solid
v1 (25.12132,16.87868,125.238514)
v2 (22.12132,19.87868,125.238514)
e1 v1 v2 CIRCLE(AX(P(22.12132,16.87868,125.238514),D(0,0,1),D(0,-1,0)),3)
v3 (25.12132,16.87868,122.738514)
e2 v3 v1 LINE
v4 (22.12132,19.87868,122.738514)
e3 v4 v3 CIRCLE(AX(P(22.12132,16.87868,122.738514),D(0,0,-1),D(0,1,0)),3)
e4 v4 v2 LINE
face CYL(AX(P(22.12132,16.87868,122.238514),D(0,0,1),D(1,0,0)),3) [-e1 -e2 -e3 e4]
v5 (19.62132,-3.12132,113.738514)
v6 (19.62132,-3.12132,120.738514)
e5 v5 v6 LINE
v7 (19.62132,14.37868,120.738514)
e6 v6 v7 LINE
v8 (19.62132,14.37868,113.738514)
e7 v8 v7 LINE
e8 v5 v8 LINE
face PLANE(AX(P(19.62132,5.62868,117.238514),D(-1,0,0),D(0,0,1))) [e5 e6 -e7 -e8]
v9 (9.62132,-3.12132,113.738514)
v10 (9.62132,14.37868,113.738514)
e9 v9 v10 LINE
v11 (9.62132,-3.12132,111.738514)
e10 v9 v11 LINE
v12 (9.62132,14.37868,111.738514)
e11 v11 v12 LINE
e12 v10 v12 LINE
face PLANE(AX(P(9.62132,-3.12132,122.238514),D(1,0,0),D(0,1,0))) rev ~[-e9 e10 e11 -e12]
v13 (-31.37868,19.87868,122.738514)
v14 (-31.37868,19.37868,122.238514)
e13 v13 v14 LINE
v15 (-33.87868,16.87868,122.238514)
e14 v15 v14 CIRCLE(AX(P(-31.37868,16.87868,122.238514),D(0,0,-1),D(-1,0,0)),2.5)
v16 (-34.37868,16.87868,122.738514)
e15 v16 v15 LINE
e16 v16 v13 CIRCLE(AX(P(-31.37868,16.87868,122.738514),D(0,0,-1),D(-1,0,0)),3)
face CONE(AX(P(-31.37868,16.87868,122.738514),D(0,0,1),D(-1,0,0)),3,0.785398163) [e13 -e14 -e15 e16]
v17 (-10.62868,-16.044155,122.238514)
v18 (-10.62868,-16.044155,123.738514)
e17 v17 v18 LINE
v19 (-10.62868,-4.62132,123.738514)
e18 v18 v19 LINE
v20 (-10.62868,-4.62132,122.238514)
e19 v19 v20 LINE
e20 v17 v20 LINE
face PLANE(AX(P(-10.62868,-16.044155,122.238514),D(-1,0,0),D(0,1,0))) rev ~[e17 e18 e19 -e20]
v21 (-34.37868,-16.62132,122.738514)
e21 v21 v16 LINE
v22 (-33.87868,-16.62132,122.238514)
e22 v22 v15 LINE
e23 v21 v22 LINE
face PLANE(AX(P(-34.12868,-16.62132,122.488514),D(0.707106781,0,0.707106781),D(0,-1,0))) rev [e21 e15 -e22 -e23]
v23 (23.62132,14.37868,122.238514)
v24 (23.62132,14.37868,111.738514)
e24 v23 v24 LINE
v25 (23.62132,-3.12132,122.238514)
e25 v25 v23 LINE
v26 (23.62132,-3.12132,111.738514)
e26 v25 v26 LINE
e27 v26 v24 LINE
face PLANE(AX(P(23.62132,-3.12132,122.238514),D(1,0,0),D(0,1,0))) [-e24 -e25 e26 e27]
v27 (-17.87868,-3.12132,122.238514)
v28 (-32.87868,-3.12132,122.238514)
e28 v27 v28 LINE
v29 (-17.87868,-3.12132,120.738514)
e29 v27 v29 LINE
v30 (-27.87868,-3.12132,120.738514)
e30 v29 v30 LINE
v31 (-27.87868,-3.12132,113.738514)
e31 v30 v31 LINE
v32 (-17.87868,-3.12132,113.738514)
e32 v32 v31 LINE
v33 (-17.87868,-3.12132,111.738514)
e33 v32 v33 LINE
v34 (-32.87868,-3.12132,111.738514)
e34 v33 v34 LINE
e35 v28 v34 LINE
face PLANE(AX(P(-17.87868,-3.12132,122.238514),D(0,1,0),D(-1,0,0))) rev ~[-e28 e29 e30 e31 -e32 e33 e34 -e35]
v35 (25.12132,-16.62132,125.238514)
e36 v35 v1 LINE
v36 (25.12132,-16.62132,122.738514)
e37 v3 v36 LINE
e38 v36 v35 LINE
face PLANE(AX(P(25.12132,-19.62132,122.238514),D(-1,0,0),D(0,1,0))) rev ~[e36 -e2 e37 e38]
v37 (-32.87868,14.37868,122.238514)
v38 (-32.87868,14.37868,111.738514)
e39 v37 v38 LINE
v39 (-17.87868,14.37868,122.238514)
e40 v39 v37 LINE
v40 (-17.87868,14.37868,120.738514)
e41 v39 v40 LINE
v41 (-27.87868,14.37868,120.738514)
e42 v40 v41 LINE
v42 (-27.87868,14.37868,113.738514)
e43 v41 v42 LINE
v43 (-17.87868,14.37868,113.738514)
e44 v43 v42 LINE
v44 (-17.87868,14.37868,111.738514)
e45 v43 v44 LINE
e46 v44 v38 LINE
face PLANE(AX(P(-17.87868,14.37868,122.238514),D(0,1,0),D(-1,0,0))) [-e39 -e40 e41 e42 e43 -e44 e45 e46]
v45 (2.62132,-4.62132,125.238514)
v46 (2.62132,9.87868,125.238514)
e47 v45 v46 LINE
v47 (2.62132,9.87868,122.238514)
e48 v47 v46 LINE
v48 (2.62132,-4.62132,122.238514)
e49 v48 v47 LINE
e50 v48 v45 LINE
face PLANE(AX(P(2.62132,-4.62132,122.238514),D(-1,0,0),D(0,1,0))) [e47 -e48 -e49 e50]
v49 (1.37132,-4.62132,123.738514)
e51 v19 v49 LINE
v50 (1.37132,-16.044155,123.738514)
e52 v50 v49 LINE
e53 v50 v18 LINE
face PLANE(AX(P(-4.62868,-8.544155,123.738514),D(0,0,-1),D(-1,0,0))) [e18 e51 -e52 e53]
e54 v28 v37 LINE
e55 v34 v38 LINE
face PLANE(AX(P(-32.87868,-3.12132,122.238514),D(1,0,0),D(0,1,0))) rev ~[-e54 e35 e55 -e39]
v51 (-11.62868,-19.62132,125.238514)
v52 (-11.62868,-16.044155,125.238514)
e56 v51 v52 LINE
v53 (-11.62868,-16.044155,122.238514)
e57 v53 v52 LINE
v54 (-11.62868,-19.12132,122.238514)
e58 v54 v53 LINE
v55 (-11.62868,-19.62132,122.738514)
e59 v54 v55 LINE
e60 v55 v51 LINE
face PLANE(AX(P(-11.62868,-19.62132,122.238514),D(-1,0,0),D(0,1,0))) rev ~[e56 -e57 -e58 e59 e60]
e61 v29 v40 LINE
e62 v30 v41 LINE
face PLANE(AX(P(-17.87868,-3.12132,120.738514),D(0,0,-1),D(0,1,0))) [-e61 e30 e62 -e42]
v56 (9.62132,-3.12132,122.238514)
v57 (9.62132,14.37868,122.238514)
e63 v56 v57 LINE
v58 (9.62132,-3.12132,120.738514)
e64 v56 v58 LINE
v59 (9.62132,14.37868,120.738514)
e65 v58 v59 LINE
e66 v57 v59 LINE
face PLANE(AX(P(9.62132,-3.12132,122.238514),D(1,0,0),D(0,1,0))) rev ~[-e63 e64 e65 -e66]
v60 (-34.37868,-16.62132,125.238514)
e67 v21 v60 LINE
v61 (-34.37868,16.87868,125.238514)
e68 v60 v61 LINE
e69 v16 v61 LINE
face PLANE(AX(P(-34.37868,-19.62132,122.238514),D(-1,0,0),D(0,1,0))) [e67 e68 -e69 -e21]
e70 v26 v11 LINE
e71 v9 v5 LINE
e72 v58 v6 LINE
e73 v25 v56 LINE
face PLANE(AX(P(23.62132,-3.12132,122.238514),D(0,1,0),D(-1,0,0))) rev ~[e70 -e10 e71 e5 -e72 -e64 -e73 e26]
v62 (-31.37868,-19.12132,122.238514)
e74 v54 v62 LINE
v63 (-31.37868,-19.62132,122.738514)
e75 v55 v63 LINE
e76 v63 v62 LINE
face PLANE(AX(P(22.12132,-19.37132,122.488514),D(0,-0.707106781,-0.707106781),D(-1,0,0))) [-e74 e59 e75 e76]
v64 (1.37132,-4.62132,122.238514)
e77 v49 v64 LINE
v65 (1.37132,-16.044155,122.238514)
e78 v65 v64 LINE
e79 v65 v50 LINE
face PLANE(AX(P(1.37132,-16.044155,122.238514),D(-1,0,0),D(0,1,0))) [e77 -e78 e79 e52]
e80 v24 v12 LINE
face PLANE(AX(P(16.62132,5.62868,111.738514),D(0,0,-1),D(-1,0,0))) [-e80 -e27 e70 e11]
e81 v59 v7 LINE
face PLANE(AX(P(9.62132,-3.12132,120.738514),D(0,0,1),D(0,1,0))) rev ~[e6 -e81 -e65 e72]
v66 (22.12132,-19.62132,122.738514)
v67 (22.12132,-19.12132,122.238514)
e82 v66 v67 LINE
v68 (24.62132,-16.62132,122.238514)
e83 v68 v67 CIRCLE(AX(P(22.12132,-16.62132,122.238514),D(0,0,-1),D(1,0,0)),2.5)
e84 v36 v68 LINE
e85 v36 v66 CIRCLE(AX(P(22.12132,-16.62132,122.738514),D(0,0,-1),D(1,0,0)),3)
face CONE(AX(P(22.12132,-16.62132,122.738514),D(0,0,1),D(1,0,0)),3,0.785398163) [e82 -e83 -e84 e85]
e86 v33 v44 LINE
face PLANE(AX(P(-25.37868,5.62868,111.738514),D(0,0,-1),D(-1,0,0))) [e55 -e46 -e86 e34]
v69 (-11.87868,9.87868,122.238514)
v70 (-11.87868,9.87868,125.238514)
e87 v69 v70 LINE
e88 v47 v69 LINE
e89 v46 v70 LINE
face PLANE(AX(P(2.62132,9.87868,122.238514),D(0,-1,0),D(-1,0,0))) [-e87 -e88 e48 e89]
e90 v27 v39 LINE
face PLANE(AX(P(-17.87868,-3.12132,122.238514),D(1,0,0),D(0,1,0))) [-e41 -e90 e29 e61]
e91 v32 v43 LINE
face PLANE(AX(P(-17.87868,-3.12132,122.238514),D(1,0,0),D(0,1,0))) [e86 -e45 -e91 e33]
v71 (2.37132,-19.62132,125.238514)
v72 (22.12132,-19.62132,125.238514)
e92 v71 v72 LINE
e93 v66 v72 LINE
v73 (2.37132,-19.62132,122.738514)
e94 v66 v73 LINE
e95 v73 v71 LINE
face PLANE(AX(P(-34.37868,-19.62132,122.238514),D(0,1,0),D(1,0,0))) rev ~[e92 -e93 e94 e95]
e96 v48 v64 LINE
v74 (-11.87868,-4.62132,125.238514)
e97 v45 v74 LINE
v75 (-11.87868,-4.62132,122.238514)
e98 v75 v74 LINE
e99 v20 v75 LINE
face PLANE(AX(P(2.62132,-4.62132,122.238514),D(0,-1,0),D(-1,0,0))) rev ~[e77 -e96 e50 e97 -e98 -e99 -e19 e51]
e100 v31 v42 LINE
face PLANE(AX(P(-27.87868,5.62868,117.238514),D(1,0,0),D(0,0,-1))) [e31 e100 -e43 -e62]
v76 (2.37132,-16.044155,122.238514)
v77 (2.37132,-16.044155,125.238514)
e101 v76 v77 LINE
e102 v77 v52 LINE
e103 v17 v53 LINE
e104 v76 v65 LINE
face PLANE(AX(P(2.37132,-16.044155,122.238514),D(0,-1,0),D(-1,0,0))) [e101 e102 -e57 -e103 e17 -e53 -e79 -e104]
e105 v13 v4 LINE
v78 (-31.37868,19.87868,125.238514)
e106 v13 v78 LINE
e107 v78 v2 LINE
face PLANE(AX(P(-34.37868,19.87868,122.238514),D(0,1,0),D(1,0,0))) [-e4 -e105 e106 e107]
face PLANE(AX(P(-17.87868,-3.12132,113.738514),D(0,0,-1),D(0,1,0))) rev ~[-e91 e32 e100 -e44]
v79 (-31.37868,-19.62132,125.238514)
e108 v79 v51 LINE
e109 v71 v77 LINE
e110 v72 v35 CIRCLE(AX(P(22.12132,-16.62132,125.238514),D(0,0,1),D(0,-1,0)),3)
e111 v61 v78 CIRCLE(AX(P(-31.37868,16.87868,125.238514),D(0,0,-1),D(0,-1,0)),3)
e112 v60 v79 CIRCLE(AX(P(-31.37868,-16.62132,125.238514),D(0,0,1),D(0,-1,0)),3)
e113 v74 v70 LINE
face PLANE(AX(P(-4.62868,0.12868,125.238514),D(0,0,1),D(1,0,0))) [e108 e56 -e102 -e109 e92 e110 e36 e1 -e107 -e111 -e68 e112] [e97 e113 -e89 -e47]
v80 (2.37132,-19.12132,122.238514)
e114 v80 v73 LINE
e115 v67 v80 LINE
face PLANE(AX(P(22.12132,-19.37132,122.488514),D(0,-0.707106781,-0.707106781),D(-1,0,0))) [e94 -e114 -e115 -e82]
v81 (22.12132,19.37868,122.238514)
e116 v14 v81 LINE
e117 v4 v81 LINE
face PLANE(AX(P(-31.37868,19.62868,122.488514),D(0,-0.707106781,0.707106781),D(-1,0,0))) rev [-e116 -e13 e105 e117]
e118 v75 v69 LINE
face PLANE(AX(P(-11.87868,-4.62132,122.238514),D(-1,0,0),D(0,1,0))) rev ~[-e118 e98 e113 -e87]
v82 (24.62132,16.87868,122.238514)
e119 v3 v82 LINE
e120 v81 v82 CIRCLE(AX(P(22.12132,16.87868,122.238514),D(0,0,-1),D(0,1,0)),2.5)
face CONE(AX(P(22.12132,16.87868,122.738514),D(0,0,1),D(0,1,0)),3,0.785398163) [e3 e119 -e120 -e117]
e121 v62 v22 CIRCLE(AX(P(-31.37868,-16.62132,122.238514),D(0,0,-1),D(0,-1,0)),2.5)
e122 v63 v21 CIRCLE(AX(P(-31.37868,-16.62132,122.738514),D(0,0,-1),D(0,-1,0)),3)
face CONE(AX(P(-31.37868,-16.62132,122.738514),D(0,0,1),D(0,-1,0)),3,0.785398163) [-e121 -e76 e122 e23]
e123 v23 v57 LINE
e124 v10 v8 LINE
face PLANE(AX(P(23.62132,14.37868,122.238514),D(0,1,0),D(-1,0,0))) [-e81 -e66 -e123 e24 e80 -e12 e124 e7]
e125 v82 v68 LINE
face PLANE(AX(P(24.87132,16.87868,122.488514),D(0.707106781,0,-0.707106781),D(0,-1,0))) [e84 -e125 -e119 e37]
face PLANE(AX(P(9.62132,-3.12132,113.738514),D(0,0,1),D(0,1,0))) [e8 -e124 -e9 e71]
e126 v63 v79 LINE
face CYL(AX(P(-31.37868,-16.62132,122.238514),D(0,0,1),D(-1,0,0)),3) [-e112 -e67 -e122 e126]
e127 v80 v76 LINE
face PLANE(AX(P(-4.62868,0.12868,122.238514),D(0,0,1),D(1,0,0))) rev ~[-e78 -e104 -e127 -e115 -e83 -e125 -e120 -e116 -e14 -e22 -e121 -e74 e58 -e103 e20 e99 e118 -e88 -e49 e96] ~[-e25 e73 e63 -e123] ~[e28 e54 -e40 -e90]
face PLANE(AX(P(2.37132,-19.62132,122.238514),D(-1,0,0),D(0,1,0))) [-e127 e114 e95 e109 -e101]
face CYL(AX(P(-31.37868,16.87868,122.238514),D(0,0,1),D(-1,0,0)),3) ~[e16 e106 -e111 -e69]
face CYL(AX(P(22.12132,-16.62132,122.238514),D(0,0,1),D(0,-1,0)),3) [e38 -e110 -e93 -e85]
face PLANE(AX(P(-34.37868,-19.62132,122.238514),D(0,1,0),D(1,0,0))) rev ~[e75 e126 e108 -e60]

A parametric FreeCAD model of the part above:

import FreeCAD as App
import Part
import Sketcher


def edges_at(feature, points):
    """Names of the edges that pass closest to the given points."""
    edges = feature.Shape.Edges
    near = lambda p: min(range(len(edges)), key=lambda i: edges[i].distToShape(Part.Vertex(*p))[0])
    return sorted({f"Edge{near(p) + 1}" for p in points})


def add_polygon(sketch, points):
    """Adds a closed chain of lines whose ends are joined by coincident constraints."""
    first, n = sketch.GeometryCount, len(points)
    for a, b in zip(points, points[1:] + points[:1]):
        sketch.addGeometry(Part.LineSegment(App.Vector(*a, 0), App.Vector(*b, 0)), False)
    for i in range(n):
        sketch.addConstraint(Sketcher.Constraint("Coincident", first + i, 2, first + (i + 1) % n, 1))

doc = App.newDocument("Part")
body = doc.addObject("PartDesign::Body", "Body")

# Sketch on XY plane
sketch1 = body.newObject("Sketcher::SketchObject", "Sketch")
sketch1.AttachmentSupport = (doc.getObject("XY_Plane"), [""])
sketch1.MapMode = "FlatFace"
sketch1.AttachmentOffset = App.Placement(App.Vector(0, 0, 122.238514), App.Rotation())
add_polygon(sketch1, [(-34, 20), (-34, -20), (25, -20), (25, 20)])  # lines 0-3
sketch1.addConstraint([
    Sketcher.Constraint("Vertical", 0),
    Sketcher.Constraint("Horizontal", 1),
    Sketcher.Constraint("Vertical", 2),
    Sketcher.Constraint("Horizontal", 3),
    Sketcher.Constraint("DistanceX", 1, 1, 1, 2, 59.5),
    Sketcher.Constraint("DistanceY", 0, 2, 0, 1, 39.5),
    Sketcher.Constraint("DistanceX", 0, 2, -1, 1, 34.37868),
    Sketcher.Constraint("DistanceY", 0, 2, -1, 1, 19.62132),
])
pad1 = body.newObject("PartDesign::Pad", "Pad")
pad1.Profile = sketch1
pad1.Length = 3
doc.recompute()

fillet = body.newObject("PartDesign::Fillet", "Fillet")
fillet.Base = (pad1, edges_at(pad1, [
    (-34.379, 19.879, 123.739),
    (25.121, 19.879, 123.739),
    (25.121, -19.621, 123.739),
    (-34.379, -19.621, 123.739),
]))
fillet.Radius = 3
doc.recompute()

chamfer = body.newObject("PartDesign::Chamfer", "Chamfer")
chamfer.Base = (fillet, edges_at(fillet, [
    (-34.379, 0.129, 122.239),
    (-4.629, 19.879, 122.239),
    (25.121, 0.129, 122.239),
    (-4.629, -19.621, 122.239),
    (-33.5, -18.743, 122.239),
    (24.243, -18.743, 122.239),
    (24.243, 19, 122.239),
    (-33.5, 19, 122.239),
]))
chamfer.Size = 0.5

# Sketch on XY plane
sketch2 = body.newObject("Sketcher::SketchObject", "Sketch001")
sketch2.AttachmentSupport = (doc.getObject("XY_Plane"), [""])
sketch2.MapMode = "FlatFace"
sketch2.AttachmentOffset = App.Placement(App.Vector(0, 0, 122.238514), App.Rotation())
add_polygon(sketch2, [(24, 14), (24, -3), (10, -3), (10, 14)])  # lines 0-3
add_polygon(sketch2, [(-18, 14), (-18, -3), (-33, -3), (-33, 14)])  # lines 4-7
sketch2.addConstraint([
    Sketcher.Constraint("Vertical", 0),
    Sketcher.Constraint("Horizontal", 1),
    Sketcher.Constraint("Vertical", 2),
    Sketcher.Constraint("Horizontal", 3),
    Sketcher.Constraint("Vertical", 4),
    Sketcher.Constraint("Horizontal", 5),
    Sketcher.Constraint("Vertical", 6),
    Sketcher.Constraint("Horizontal", 7),
    Sketcher.Constraint("Horizontal", 1, 2, 4, 2),
    Sketcher.Constraint("Horizontal", 3, 2, 6, 2),
    Sketcher.Constraint("DistanceX", 1, 2, 1, 1, 14.0),
    Sketcher.Constraint("DistanceX", 5, 2, 5, 1, 15.0),
    Sketcher.Constraint("DistanceY", 0, 2, 0, 1, 17.5),
    Sketcher.Constraint("DistanceX", 4, 2, 1, 2, 27.5),
    Sketcher.Constraint("DistanceX", -1, 1, 0, 2, 23.62132),
    Sketcher.Constraint("DistanceY", 0, 2, -1, 1, 3.12132),
])
pad2 = body.newObject("PartDesign::Pad", "Pad001")
pad2.Profile = sketch2
pad2.Length = 10.5
pad2.Reversed = True

# Sketch on XY plane
sketch3 = body.newObject("Sketcher::SketchObject", "Sketch002")
sketch3.AttachmentSupport = (doc.getObject("XY_Plane"), [""])
sketch3.MapMode = "FlatFace"
sketch3.AttachmentOffset = App.Placement(App.Vector(0, 0, 122.238514), App.Rotation())
add_polygon(sketch3, [(2.4, -16), (2.4, -19.6), (-11.6, -19.6), (-11.6, -16)])  # lines 0-3
sketch3.addConstraint([
    Sketcher.Constraint("Vertical", 0),
    Sketcher.Constraint("Horizontal", 1),
    Sketcher.Constraint("Vertical", 2),
    Sketcher.Constraint("Horizontal", 3),
    Sketcher.Constraint("DistanceX", 1, 2, 1, 1, 14.0),
    Sketcher.Constraint("DistanceY", 0, 2, 0, 1, 3.577166),
    Sketcher.Constraint("DistanceX", -1, 1, 0, 2, 2.37132),
    Sketcher.Constraint("DistanceY", 0, 2, -1, 1, 19.62132),
])
pocket1 = body.newObject("PartDesign::Pocket", "Pocket")
pocket1.Profile = sketch3
pocket1.Type = "UpToFirst"
pocket1.Reversed = True

# Sketch on XY plane
sketch4 = body.newObject("Sketcher::SketchObject", "Sketch003")
sketch4.AttachmentSupport = (doc.getObject("XY_Plane"), [""])
sketch4.MapMode = "FlatFace"
sketch4.AttachmentOffset = App.Placement(App.Vector(0, 0, 122.238514), App.Rotation())
add_polygon(sketch4, [(3, 10), (3, -5), (-12, -5), (-12, 10)])  # lines 0-3
sketch4.addConstraint([
    Sketcher.Constraint("Vertical", 0),
    Sketcher.Constraint("Horizontal", 1),
    Sketcher.Constraint("Vertical", 2),
    Sketcher.Constraint("Horizontal", 3),
    Sketcher.Constraint("Equal", 3, 0),
    Sketcher.Constraint("DistanceX", 1, 2, 1, 1, 14.5),
    Sketcher.Constraint("DistanceX", -1, 1, 0, 2, 2.62132),
    Sketcher.Constraint("DistanceY", 0, 2, -1, 1, 4.62132),
])
pocket2 = body.newObject("PartDesign::Pocket", "Pocket001")
pocket2.Profile = sketch4
pocket2.Type = "UpToFirst"
pocket2.Reversed = True

# Sketch on XY plane
sketch5 = body.newObject("Sketcher::SketchObject", "Sketch004")
sketch5.AttachmentSupport = (doc.getObject("XY_Plane"), [""])
sketch5.MapMode = "FlatFace"
sketch5.AttachmentOffset = App.Placement(App.Vector(0, 0, 122.238514), App.Rotation())
add_polygon(sketch5, [(1, -1), (1, -16), (-11, -16), (-11, -1)])  # lines 0-3
sketch5.addConstraint([
    Sketcher.Constraint("Vertical", 0),
    Sketcher.Constraint("Horizontal", 1),
    Sketcher.Constraint("Vertical", 2),
    Sketcher.Constraint("Horizontal", 3),
    Sketcher.Constraint("DistanceX", 1, 2, 1, 1, 12.0),
    Sketcher.Constraint("DistanceY", 0, 2, 0, 1, 15.0),
    Sketcher.Constraint("DistanceX", -1, 1, 0, 2, 1.37132),
    Sketcher.Constraint("DistanceY", 0, 2, -1, 1, 16.044155),
])
pocket3 = body.newObject("PartDesign::Pocket", "Pocket002")
pocket3.Profile = sketch5
pocket3.Length = 1.5
pocket3.Reversed = True

# Sketch on YZ plane
sketch6 = body.newObject("Sketcher::SketchObject", "Sketch005")
sketch6.AttachmentSupport = (doc.getObject("YZ_Plane"), [""])
sketch6.MapMode = "FlatFace"
sketch6.AttachmentOffset = App.Placement(App.Vector(0, 0, 9.62132), App.Rotation())
add_polygon(sketch6, [(14, 114), (-3, 114), (-3, 121), (14, 121)])  # lines 0-3
sketch6.addConstraint([
    Sketcher.Constraint("Horizontal", 0),
    Sketcher.Constraint("Vertical", 1),
    Sketcher.Constraint("Horizontal", 2),
    Sketcher.Constraint("Vertical", 3),
    Sketcher.Constraint("DistanceY", 1, 1, 1, 2, 7.0),
    Sketcher.Constraint("DistanceX", 0, 2, 0, 1, 17.5),
    Sketcher.Constraint("DistanceX", 0, 2, -1, 1, 3.12132),
    Sketcher.Constraint("DistanceY", -1, 1, 0, 2, 113.738514),
])
pocket4 = body.newObject("PartDesign::Pocket", "Pocket003")
pocket4.Profile = sketch6
pocket4.Length = 10
pocket4.Reversed = True

# Sketch on YZ plane
sketch7 = body.newObject("Sketcher::SketchObject", "Sketch006")
sketch7.AttachmentSupport = (doc.getObject("YZ_Plane"), [""])
sketch7.MapMode = "FlatFace"
sketch7.AttachmentOffset = App.Placement(App.Vector(0, 0, -17.87868), App.Rotation())
add_polygon(sketch7, [(14, 121), (-3, 121), (-3, 114), (14, 114)])  # lines 0-3
sketch7.addConstraint([
    Sketcher.Constraint("Horizontal", 0),
    Sketcher.Constraint("Vertical", 1),
    Sketcher.Constraint("Horizontal", 2),
    Sketcher.Constraint("Vertical", 3),
    Sketcher.Constraint("DistanceY", 1, 2, 1, 1, 7.0),
    Sketcher.Constraint("DistanceX", 0, 2, 0, 1, 17.5),
    Sketcher.Constraint("DistanceX", 0, 2, -1, 1, 3.12132),
    Sketcher.Constraint("DistanceY", -1, 1, 0, 2, 120.738514),
])
pocket5 = body.newObject("PartDesign::Pocket", "Pocket004")
pocket5.Profile = sketch7
pocket5.Length = 10

doc.recompute()
